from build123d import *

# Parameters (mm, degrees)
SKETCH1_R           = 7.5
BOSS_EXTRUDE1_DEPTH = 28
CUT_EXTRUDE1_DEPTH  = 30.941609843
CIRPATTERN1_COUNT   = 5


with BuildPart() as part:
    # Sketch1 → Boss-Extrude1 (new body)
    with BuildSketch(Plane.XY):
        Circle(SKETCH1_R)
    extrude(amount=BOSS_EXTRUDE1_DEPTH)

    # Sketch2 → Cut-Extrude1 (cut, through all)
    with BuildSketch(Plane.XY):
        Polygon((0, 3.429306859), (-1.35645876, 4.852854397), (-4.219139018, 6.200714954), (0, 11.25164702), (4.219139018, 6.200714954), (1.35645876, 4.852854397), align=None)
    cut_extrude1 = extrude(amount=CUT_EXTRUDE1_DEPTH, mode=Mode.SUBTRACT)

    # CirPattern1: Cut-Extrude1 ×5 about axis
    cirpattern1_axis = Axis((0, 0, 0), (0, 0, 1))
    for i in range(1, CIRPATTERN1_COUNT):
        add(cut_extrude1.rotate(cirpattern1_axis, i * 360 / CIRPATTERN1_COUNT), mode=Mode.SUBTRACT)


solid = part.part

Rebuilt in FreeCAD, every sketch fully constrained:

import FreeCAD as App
import Part
import Sketcher
from FreeCAD import Vector


def add_polygon(sketch, points):
    """Adds a closed chain of lines whose ends are joined by coincident constraints."""
    first, n = sketch.GeometryCount, len(points)
    for a, b in zip(points, points[1:] + points[:1]):
        sketch.addGeometry(Part.LineSegment(App.Vector(*a, 0), App.Vector(*b, 0)), False)
    for i in range(n):
        sketch.addConstraint(Sketcher.Constraint("Coincident", first + i, 2, first + (i + 1) % n, 1))

doc = App.newDocument("Part")
body = doc.addObject("PartDesign::Body", "Body")

# Sketch on XY plane
sketch1 = body.newObject("Sketcher::SketchObject", "Sketch")
sketch1.AttachmentSupport = (doc.getObject("XY_Plane"), [""])
sketch1.MapMode = "FlatFace"
sketch1.addGeometry(Part.Circle(Vector(0, 0, 0), Vector(0, 0, 1), 8), False)
sketch1.addConstraint(Sketcher.Constraint("Coincident", 0, 3, -1, 1))
sketch1.addConstraint(Sketcher.Constraint("Diameter", 0, 15.0))
pad1 = body.newObject("PartDesign::Pad", "Pad")
pad1.Profile = sketch1
pad1.Length = 28

# Sketch on XY plane
sketch2 = body.newObject("Sketcher::SketchObject", "Sketch001")
sketch2.AttachmentSupport = (doc.getObject("XY_Plane"), [""])
sketch2.MapMode = "FlatFace"
add_polygon(sketch2, [(-1.4, 4.9), (0, 3.4), (1.4, 4.9), (4.2, 6.2), (0, 11.3), (-4.2, 6.2)])  # lines 0-5
sketch2.addConstraint(Sketcher.Constraint("Symmetric", 2, 2, 4, 2, -2))
sketch2.addConstraint(Sketcher.Constraint("Symmetric", 1, 2, 5, 2, -2))
sketch2.addConstraint(Sketcher.Constraint("PointOnObject", 0, 2, -2))
sketch2.addConstraint(Sketcher.Constraint("PointOnObject", 3, 2, -2))
sketch2.addConstraint(Sketcher.Constraint("Distance", 2, 3.164122))
sketch2.addConstraint(Sketcher.Constraint("DistanceX", -1, 1, 1, 2, 1.356459))
sketch2.addConstraint(Sketcher.Constraint("DistanceX", -1, 1, 2, 2, 4.219139))
sketch2.addConstraint(Sketcher.Constraint("DistanceY", 0, 2, 2, 2, 2.771408))
sketch2.addConstraint(Sketcher.Constraint("DistanceY", 0, 2, 3, 2, 7.82234))
sketch2.addConstraint(Sketcher.Constraint("DistanceY", -1, 1, 0, 2, 3.429307))
pocket1 = body.newObject("PartDesign::Pocket", "Pocket")
pocket1.Profile = sketch2
pocket1.Type = "ThroughAll"
pocket1.Reversed = True
doc.recompute()

polarpattern = body.newObject("PartDesign::PolarPattern", "PolarPattern")
polarpattern.Originals = [pocket1]
polarpattern.Axis = (doc.getObject("Z_Axis"), [""])
polarpattern.Angle = 360
polarpattern.Occurrences = 5
body.Tip = polarpattern

doc.recompute()
